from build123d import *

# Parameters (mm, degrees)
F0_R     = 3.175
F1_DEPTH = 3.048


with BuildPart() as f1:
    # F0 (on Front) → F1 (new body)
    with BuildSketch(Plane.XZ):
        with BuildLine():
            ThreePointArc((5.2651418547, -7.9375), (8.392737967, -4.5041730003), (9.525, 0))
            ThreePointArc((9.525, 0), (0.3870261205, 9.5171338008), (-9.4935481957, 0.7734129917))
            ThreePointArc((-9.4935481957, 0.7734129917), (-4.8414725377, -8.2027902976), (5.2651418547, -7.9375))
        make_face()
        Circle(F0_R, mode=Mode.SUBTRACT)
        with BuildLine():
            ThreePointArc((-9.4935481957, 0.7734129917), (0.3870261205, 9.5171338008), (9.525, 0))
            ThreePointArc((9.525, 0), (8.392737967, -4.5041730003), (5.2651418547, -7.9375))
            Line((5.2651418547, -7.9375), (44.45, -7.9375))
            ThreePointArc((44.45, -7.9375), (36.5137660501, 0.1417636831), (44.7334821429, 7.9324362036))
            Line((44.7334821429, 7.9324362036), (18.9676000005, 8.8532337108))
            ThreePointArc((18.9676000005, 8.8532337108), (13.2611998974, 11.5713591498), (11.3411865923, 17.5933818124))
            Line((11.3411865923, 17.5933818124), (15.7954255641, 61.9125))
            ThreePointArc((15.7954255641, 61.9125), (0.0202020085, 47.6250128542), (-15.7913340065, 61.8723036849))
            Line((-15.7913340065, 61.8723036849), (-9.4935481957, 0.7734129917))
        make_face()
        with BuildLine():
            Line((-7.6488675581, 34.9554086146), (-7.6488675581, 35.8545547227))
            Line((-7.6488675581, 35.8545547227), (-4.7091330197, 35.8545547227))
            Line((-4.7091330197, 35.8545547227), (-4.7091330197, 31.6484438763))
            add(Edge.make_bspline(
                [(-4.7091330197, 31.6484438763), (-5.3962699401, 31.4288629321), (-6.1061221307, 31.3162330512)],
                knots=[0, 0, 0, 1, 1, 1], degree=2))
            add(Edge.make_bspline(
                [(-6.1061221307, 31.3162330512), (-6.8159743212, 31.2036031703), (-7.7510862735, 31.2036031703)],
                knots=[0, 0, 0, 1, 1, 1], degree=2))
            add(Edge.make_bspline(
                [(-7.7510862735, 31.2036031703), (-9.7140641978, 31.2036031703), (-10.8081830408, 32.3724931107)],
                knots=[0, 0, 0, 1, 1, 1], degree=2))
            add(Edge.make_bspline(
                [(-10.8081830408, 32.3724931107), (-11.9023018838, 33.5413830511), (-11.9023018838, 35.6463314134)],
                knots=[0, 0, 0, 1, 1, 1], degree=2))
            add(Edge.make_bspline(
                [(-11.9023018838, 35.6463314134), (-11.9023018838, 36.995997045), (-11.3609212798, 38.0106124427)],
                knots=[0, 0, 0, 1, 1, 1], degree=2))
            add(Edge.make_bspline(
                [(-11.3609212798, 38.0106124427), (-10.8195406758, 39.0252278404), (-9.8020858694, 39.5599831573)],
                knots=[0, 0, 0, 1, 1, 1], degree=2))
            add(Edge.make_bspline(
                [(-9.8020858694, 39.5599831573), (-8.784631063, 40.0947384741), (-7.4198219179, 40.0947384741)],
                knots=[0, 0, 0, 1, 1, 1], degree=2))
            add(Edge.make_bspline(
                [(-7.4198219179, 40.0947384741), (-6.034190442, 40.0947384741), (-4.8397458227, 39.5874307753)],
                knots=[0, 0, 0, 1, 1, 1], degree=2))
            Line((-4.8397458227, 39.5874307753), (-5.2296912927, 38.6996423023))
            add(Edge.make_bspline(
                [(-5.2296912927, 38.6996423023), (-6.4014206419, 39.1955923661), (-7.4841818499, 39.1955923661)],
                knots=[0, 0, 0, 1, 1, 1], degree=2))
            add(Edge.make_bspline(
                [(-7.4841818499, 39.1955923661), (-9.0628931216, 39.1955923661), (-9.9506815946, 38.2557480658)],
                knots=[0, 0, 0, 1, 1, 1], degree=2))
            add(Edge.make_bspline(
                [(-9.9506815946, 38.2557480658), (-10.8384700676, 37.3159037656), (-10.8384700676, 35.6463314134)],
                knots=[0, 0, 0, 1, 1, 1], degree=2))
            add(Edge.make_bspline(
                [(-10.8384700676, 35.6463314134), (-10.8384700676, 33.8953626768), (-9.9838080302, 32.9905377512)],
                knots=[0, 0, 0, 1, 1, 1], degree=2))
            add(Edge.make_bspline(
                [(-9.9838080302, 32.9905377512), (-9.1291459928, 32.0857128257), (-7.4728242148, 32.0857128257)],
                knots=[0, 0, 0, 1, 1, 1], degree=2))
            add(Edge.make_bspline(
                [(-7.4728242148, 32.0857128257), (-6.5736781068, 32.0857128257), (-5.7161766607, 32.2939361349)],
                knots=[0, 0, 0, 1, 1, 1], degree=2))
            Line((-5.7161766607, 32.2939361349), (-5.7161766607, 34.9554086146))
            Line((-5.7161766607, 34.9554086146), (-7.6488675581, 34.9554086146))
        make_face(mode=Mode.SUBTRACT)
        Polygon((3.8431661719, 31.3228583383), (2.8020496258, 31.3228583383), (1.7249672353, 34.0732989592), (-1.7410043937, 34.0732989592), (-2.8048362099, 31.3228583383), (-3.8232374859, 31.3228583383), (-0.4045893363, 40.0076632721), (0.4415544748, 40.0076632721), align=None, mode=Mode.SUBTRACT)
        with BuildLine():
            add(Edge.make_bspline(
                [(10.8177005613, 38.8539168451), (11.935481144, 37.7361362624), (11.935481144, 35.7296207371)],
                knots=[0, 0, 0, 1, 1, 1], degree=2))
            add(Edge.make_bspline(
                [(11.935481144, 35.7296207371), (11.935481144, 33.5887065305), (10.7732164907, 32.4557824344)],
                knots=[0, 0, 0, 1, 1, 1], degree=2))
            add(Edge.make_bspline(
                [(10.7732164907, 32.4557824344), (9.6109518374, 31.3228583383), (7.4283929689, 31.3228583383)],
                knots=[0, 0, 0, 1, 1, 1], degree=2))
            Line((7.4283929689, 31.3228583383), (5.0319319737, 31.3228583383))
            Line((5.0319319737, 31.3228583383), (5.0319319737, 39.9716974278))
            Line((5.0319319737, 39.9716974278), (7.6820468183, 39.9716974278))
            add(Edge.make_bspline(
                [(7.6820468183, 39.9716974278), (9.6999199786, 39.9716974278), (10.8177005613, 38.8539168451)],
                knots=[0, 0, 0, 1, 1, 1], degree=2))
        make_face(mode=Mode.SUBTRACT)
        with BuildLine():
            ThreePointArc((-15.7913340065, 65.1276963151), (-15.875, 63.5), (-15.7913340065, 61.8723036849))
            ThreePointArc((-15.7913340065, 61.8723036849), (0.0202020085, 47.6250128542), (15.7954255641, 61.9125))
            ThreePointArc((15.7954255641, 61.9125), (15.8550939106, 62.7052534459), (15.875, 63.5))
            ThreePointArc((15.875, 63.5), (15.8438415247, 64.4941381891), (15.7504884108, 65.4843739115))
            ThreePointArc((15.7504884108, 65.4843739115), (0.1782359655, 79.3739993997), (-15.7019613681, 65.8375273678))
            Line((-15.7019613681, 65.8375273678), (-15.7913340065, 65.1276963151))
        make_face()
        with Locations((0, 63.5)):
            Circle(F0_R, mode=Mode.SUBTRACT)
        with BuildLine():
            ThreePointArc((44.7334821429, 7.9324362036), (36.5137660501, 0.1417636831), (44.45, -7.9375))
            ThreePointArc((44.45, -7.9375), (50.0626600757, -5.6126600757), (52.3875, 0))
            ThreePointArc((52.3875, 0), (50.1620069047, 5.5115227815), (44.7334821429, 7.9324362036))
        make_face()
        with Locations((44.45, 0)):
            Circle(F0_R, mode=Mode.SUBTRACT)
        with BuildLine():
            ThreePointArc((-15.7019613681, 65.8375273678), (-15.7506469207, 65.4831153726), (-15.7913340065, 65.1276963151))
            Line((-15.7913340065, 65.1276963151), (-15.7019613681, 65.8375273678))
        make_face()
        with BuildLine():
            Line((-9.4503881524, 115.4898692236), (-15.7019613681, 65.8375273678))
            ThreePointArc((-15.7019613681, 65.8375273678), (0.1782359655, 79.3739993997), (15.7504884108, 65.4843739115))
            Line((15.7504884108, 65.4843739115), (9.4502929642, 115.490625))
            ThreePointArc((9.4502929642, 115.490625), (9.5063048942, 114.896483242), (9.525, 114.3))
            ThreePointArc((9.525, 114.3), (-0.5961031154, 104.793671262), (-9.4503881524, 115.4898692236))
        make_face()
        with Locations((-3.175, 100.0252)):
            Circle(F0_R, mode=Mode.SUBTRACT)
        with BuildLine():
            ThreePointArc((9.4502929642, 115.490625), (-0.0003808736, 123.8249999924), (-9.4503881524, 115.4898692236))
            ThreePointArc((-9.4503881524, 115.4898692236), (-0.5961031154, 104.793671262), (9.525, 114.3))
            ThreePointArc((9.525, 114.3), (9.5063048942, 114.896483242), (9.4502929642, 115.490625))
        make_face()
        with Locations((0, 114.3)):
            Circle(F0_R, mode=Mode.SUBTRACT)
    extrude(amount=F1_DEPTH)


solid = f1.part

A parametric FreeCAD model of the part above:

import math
import FreeCAD as App
import Part
import Sketcher
from FreeCAD import Vector
Q = App.Units.Quantity

doc = App.newDocument("Part")
params = doc.addObject("Spreadsheet::Sheet", "Params")
for row, (alias, value) in enumerate([
    ("sketch1_diameter", "0.25 in"),
    ("sketch1_diameter2", "0.25 in"),
    ("sketch1_diameter3", "0.25 in"),
    ("sketch1_diameter4", "0.25 in"),
    ("sketch1_diameter5", "0.25 in"),
    ("pad1_length", "0.12 in"),
], start=1):
    params.set(f"A{row}", alias)
    params.set(f"B{row}", "=" + value)
    params.setAlias(f"B{row}", alias)

body = doc.addObject("PartDesign::Body", "Body")

# Sketch on XZ plane
sketch1 = body.newObject("Sketcher::SketchObject", "Sketch")
sketch1.AttachmentSupport = (doc.getObject("XZ_Plane"), [""])
sketch1.MapMode = "FlatFace"
sketch1.addGeometry([
    Part.ArcOfCircle(Part.Circle(Vector(0, 0, 0), Vector(0, 0, 1), 9.525), math.radians(175.342558), math.radians(303.55731)),  # 0
    Part.LineSegment(Vector(5.265142, -7.9375, 0), Vector(44.45, -7.9375, 0)),  # 1
    Part.ArcOfCircle(Part.Circle(Vector(44.45, 0, 0), Vector(0, 0, 1), 7.9375), math.radians(-90), math.radians(0)),  # 2
    Part.ArcOfCircle(Part.Circle(Vector(44.45, 0, 0), Vector(0, 0, 1), 7.9375), math.radians(0), math.radians(87.953287)),  # 3
    Part.LineSegment(Vector(44.733482, 7.932436, 0), Vector(18.9676, 8.853234, 0)),  # 4
    Part.ArcOfCircle(Part.Circle(Vector(19.251536, 16.798362, 0), Vector(0, 0, 1), 7.9502), math.radians(174.26083), math.radians(267.953287)),  # 5
    Part.LineSegment(Vector(11.341187, 17.593382, 0), Vector(15.795426, 61.9125, 0)),  # 6
    Part.ArcOfCircle(Part.Circle(Vector(0, 63.5, 0), Vector(0, 0, 1), 15.875), math.radians(-5.73917), math.radians(0)),  # 7
    Part.ArcOfCircle(Part.Circle(Vector(0, 63.5, 0), Vector(0, 0, 1), 15.875), math.radians(0), math.radians(7.180752)),  # 8
    Part.LineSegment(Vector(15.750488, 65.484374, 0), Vector(9.450293, 115.490625, 0)),  # 9
    Part.ArcOfCircle(Part.Circle(Vector(0, 114.3, 0), Vector(0, 0, 1), 9.525), math.radians(7.180756), math.radians(172.823826)),  # 10
    Part.LineSegment(Vector(-9.450388, 115.489869, 0), Vector(-15.701961, 65.837527, 0)),  # 11
    Part.ArcOfCircle(Part.Circle(Vector(0, 63.5, 0), Vector(0, 0, 1), 15.875), math.radians(171.532649), math.radians(174.115004)),  # 12
    Part.ArcOfCircle(Part.Circle(Vector(0, 63.5, 0), Vector(0, 0, 1), 15.875), math.radians(174.115004), math.radians(185.884996)),  # 13
    Part.LineSegment(Vector(-15.791334, 61.872304, 0), Vector(-9.493548, 0.773413, 0)),  # 14
    Part.Circle(Vector(0, 0, 0), Vector(0, 0, 1), 3.175),  # 15
    Part.LineSegment(Vector(-5.716177, 34.955409, 0), Vector(-7.648868, 34.955409, 0)),  # 16
    Part.LineSegment(Vector(-7.648868, 34.955409, 0), Vector(-7.648868, 35.854555, 0)),  # 17
    Part.LineSegment(Vector(-7.648868, 35.854555, 0), Vector(-4.709133, 35.854555, 0)),  # 18
    Part.LineSegment(Vector(-4.709133, 35.854555, 0), Vector(-4.709133, 31.648444, 0)),  # 19
    Part.BSplineCurve([Vector(-4.709133, 31.648444, 0), Vector(-5.39627, 31.428863, 0), Vector(-6.106122, 31.316233, 0)], [3, 3], [0, 1], False, 2, [1, 1, 1], False),  # 20
    Part.BSplineCurve([Vector(-6.106122, 31.316233, 0), Vector(-6.815974, 31.203603, 0), Vector(-9.714064, 31.203603, 0), Vector(-11.902302, 33.541383, 0), Vector(-11.902302, 36.995997, 0), Vector(-10.819541, 39.025228, 0), Vector(-9.802086, 39.559983, 0)], [3, 1, 1, 1, 1, 3], [0, 1, 3.099190284, 5.198380567, 6.544354193, 7.890327819], False, 2, [1, 1, 1, 1, 1, 1, 1], False),  # 21
    Part.BSplineCurve([Vector(-9.802086, 39.559983, 0), Vector(-8.784631, 40.094738, 0), Vector(-6.03419, 40.094738, 0), Vector(-4.839746, 39.587431, 0)], [3, 1, 3], [0, 1, 2.015256588], False, 2, [1, 1, 1, 1], False),  # 22
    Part.LineSegment(Vector(-4.839746, 39.587431, 0), Vector(-5.229691, 38.699642, 0)),  # 23
    Part.BSplineCurve([Vector(-5.229691, 38.699642, 0), Vector(-6.401421, 39.195592, 0), Vector(-9.062893, 39.195592, 0), Vector(-9.950682, 38.255748, 0)], [3, 1, 3], [0, 1, 2.458041958], False, 2, [1, 1, 1, 1], False),  # 24
    Part.BSplineCurve([Vector(-9.950682, 38.255748, 0), Vector(-10.83847, 37.315904, 0), Vector(-10.83847, 33.895363, 0), Vector(-9.983808, 32.990538, 0)], [3, 1, 3], [0, 1, 2.048752834], False, 2, [1, 1, 1, 1], False),  # 25
    Part.BSplineCurve([Vector(-9.983808, 32.990538, 0), Vector(-9.129146, 32.085713, 0), Vector(-6.573678, 32.085713, 0), Vector(-5.716177, 32.293936, 0)], [3, 1, 3], [0, 1, 1.542857143], False, 2, [1, 1, 1, 1], False),  # 26
    Part.LineSegment(Vector(-5.716177, 32.293936, 0), Vector(-5.716177, 34.955409, 0)),  # 27
    Part.LineSegment(Vector(0.441554, 40.007663, 0), Vector(3.843166, 31.322858, 0)),  # 28
    Part.LineSegment(Vector(3.843166, 31.322858, 0), Vector(2.80205, 31.322858, 0)),  # 29
    Part.LineSegment(Vector(2.80205, 31.322858, 0), Vector(1.724967, 34.073299, 0)),  # 30
    Part.LineSegment(Vector(1.724967, 34.073299, 0), Vector(-1.741004, 34.073299, 0)),  # 31
    Part.LineSegment(Vector(-1.741004, 34.073299, 0), Vector(-2.804836, 31.322858, 0)),  # 32
    Part.LineSegment(Vector(-2.804836, 31.322858, 0), Vector(-3.823237, 31.322858, 0)),  # 33
    Part.LineSegment(Vector(-3.823237, 31.322858, 0), Vector(-0.404589, 40.007663, 0)),  # 34
    Part.LineSegment(Vector(-0.404589, 40.007663, 0), Vector(0.441554, 40.007663, 0)),  # 35
    Part.BSplineCurve([Vector(7.682047, 39.971697, 0), Vector(9.69992, 39.971697, 0), Vector(11.935481, 37.736136, 0), Vector(11.935481, 33.588707, 0), Vector(9.610952, 31.322858, 0), Vector(7.428393, 31.322858, 0)], [3, 1, 1, 1, 3], [0, 1, 2, 3.066981132, 4.133962264], False, 2, [1, 1, 1, 1, 1, 1], False),  # 36
    Part.LineSegment(Vector(7.428393, 31.322858, 0), Vector(5.031932, 31.322858, 0)),  # 37
    Part.LineSegment(Vector(5.031932, 31.322858, 0), Vector(5.031932, 39.971697, 0)),  # 38
    Part.LineSegment(Vector(5.031932, 39.971697, 0), Vector(7.682047, 39.971697, 0)),  # 39
    Part.Circle(Vector(44.45, 0, 0), Vector(0, 0, 1), 3.175),  # 40
    Part.Circle(Vector(0, 63.5, 0), Vector(0, 0, 1), 3.175),  # 41
    Part.Circle(Vector(-3.175, 100.0252, 0), Vector(0, 0, 1), 3.175),  # 42
    Part.Circle(Vector(0, 114.3, 0), Vector(0, 0, 1), 3.175),  # 43
], False)
sketch1.addConstraint([
    Sketcher.Constraint("Block", 20),
    Sketcher.Constraint("Block", 21),
    Sketcher.Constraint("Block", 22),
    Sketcher.Constraint("Block", 24),
    Sketcher.Constraint("Block", 25),
    Sketcher.Constraint("Block", 26),
    Sketcher.Constraint("Block", 36),
    Sketcher.Constraint("Coincident", 0, 2, 1, 1),
    Sketcher.Constraint("Coincident", 1, 2, 2, 1),
    Sketcher.Constraint("Coincident", 2, 2, 3, 1),
    Sketcher.Constraint("Coincident", 3, 2, 4, 1),
    Sketcher.Constraint("Coincident", 4, 2, 5, 2),
    Sketcher.Constraint("Coincident", 5, 1, 6, 1),
    Sketcher.Constraint("Coincident", 6, 2, 7, 1),
    Sketcher.Constraint("Coincident", 7, 2, 8, 1),
    Sketcher.Constraint("Coincident", 8, 2, 9, 1),
    Sketcher.Constraint("Coincident", 9, 2, 10, 1),
    Sketcher.Constraint("Coincident", 10, 2, 11, 1),
    Sketcher.Constraint("Coincident", 11, 2, 12, 1),
    Sketcher.Constraint("Coincident", 12, 2, 13, 1),
    Sketcher.Constraint("Coincident", 13, 2, 14, 1),
    Sketcher.Constraint("Coincident", 14, 2, 0, 1),
    Sketcher.Constraint("Coincident", 16, 2, 17, 1),
    Sketcher.Constraint("Coincident", 17, 2, 18, 1),
    Sketcher.Constraint("Coincident", 18, 2, 19, 1),
    Sketcher.Constraint("Coincident", 19, 2, 20, 1),
    Sketcher.Constraint("Coincident", 22, 2, 23, 1),
    Sketcher.Constraint("Coincident", 23, 2, 24, 1),
    Sketcher.Constraint("Coincident", 26, 2, 27, 1),
    Sketcher.Constraint("Coincident", 27, 2, 16, 1),
    Sketcher.Constraint("Coincident", 28, 2, 29, 1),
    Sketcher.Constraint("Coincident", 29, 2, 30, 1),
    Sketcher.Constraint("Coincident", 30, 2, 31, 1),
    Sketcher.Constraint("Coincident", 31, 2, 32, 1),
    Sketcher.Constraint("Coincident", 32, 2, 33, 1),
    Sketcher.Constraint("Coincident", 33, 2, 34, 1),
    Sketcher.Constraint("Coincident", 34, 2, 35, 1),
    Sketcher.Constraint("Coincident", 35, 2, 28, 1),
    Sketcher.Constraint("Coincident", 36, 2, 37, 1),
    Sketcher.Constraint("Coincident", 37, 2, 38, 1),
    Sketcher.Constraint("Coincident", 38, 2, 39, 1),
    Sketcher.Constraint("Coincident", 39, 2, 36, 1),
    Sketcher.Constraint("Horizontal", 1),
    Sketcher.Constraint("Horizontal", 16),
    Sketcher.Constraint("Vertical", 17),
    Sketcher.Constraint("Horizontal", 18),
    Sketcher.Constraint("Vertical", 19),
    Sketcher.Constraint("Vertical", 27),
    Sketcher.Constraint("Horizontal", 29),
    Sketcher.Constraint("Horizontal", 31),
    Sketcher.Constraint("Horizontal", 33),
    Sketcher.Constraint("Horizontal", 35),
    Sketcher.Constraint("Horizontal", 37),
    Sketcher.Constraint("Vertical", 38),
    Sketcher.Constraint("Horizontal", 39),
    Sketcher.Constraint("Coincident", 0, 3, -1, 1),
    Sketcher.Constraint("Coincident", 15, 3, -1, 1),
    Sketcher.Constraint("Coincident", 3, 3, 2, 3),
    Sketcher.Constraint("Coincident", 8, 3, 7, 3),
    Sketcher.Constraint("Coincident", 12, 3, 7, 3),
    Sketcher.Constraint("Coincident", 13, 3, 7, 3),
    Sketcher.Constraint("Coincident", 40, 3, 2, 3),
    Sketcher.Constraint("Coincident", 41, 3, 7, 3),
    Sketcher.Constraint("Coincident", 43, 3, 10, 3),
    Sketcher.Constraint("PointOnObject", 2, 3, -1),
    Sketcher.Constraint("PointOnObject", 7, 3, -2),
    Sketcher.Constraint("PointOnObject", 10, 3, -2),
    Sketcher.Constraint("PointOnObject", 2, 2, -1),
    Sketcher.Constraint("Diameter", 15, Q("0.25 in")),
    Sketcher.Constraint("Diameter", 40, Q("0.25 in")),
    Sketcher.Constraint("Diameter", 41, Q("0.25 in")),
    Sketcher.Constraint("Diameter", 42, Q("0.25 in")),
    Sketcher.Constraint("Diameter", 43, Q("0.25 in")),
    Sketcher.Constraint("Radius", 0, Q("0.375 in")),
    Sketcher.Constraint("Radius", 2, Q("0.3125 in")),
    Sketcher.Constraint("Radius", 5, Q("0.313 in")),
    Sketcher.Constraint("Radius", 7, Q("0.625 in")),
    Sketcher.Constraint("Radius", 10, Q("0.375 in")),
    Sketcher.Constraint("Radius", 12, Q("0.625 in")),
    Sketcher.Constraint("DistanceY", 7, 3, 10, 3, Q("2 in")),
    Sketcher.Constraint("DistanceY", -1, 1, 7, 3, Q("2.5 in")),
    Sketcher.Constraint("DistanceY", -1, 1, 7, 2, Q("2.5 in")),
    Sketcher.Constraint("DistanceX", -1, 1, 2, 3, Q("1.75 in")),
    Sketcher.Constraint("DistanceX", -1, 1, 1, 2, Q("1.75 in")),
    Sketcher.Constraint("DistanceX", 42, 3, -1, 1, Q("0.125 in")),
    Sketcher.Constraint("DistanceY", -1, 1, 42, 3, Q("3.938 in")),
    Sketcher.Constraint("DistanceY", -1, 1, 6, 2, Q("2.4375 in")),
    Sketcher.Constraint("DistanceY", -1, 1, 8, 2, Q("2.578125 in")),
    Sketcher.Constraint("DistanceY", -1, 1, 9, 2, Q("4.546875 in")),
    Sketcher.Constraint("DistanceX", 33, 2, 33, 1, 1.018401),
    Sketcher.Constraint("DistanceY", 5, 3, 5, 1, Q("0.0313 in")),
    Sketcher.Constraint("DistanceX", 16, 2, 16, 1, 1.932691),
    Sketcher.Constraint("DistanceX", 31, 2, 31, 1, 3.465972),
    Sketcher.Constraint("DistanceX", 37, 2, 37, 1, 2.396461),
    Sketcher.Constraint("DistanceY", 19, 2, 19, 1, 4.206111),
    Sketcher.Constraint("DistanceX", -1, 1, 4, 2, 18.9676),
    Sketcher.Constraint("DistanceY", -1, 1, 30, 2, 34.073299),
    Sketcher.Constraint("DistanceX", 19, 2, 28, 2, 8.552299),
    Sketcher.Constraint("DistanceX", 30, 2, 28, 2, 2.118199),
    Sketcher.Constraint("DistanceX", 23, 2, 34, 2, 4.825102),
    Sketcher.Constraint("Distance", 4, 25.78233),
    Sketcher.Constraint("Distance", 6, 44.54239),
    Sketcher.Constraint("Distance", 32, 2.94901),
    Sketcher.Constraint("DistanceX", 29, 2, 29, 1, 1.041117),
    Sketcher.Constraint("DistanceX", 35, 1, 35, 2, 0.846144),
    Sketcher.Constraint("DistanceY", 17, 1, 17, 2, 0.899146),
    Sketcher.Constraint("DistanceY", -1, 1, 5, 3, 16.798362),
    Sketcher.Constraint("DistanceX", 10, 2, -1, 1, 9.450388),
    Sketcher.Constraint("DistanceX", 11, 2, -1, 1, 15.701961),
    Sketcher.Constraint("DistanceX", 14, 2, -1, 1, 9.493548),
    Sketcher.Constraint("DistanceY", -1, 1, 28, 2, 31.322858),
    Sketcher.Constraint("DistanceY", -1, 1, 32, 2, 31.322858),
    Sketcher.Constraint("DistanceY", 12, 2, 11, 2, 0.709831),
    Sketcher.Constraint("DistanceY", 17, 2, 13, 2, 26.017749),
    Sketcher.Constraint("DistanceY", 23, 2, 34, 2, 1.308021),
])
sketch1.setExpression("Constraints[68]", "Params.sketch1_diameter")
sketch1.setExpression("Constraints[69]", "Params.sketch1_diameter2")
sketch1.setExpression("Constraints[70]", "Params.sketch1_diameter3")
sketch1.setExpression("Constraints[71]", "Params.sketch1_diameter4")
sketch1.setExpression("Constraints[72]", "Params.sketch1_diameter5")
pad1 = body.newObject("PartDesign::Pad", "Pad")
pad1.Profile = sketch1
pad1.setExpression("Length", "Params.pad1_length")

doc.recompute()
